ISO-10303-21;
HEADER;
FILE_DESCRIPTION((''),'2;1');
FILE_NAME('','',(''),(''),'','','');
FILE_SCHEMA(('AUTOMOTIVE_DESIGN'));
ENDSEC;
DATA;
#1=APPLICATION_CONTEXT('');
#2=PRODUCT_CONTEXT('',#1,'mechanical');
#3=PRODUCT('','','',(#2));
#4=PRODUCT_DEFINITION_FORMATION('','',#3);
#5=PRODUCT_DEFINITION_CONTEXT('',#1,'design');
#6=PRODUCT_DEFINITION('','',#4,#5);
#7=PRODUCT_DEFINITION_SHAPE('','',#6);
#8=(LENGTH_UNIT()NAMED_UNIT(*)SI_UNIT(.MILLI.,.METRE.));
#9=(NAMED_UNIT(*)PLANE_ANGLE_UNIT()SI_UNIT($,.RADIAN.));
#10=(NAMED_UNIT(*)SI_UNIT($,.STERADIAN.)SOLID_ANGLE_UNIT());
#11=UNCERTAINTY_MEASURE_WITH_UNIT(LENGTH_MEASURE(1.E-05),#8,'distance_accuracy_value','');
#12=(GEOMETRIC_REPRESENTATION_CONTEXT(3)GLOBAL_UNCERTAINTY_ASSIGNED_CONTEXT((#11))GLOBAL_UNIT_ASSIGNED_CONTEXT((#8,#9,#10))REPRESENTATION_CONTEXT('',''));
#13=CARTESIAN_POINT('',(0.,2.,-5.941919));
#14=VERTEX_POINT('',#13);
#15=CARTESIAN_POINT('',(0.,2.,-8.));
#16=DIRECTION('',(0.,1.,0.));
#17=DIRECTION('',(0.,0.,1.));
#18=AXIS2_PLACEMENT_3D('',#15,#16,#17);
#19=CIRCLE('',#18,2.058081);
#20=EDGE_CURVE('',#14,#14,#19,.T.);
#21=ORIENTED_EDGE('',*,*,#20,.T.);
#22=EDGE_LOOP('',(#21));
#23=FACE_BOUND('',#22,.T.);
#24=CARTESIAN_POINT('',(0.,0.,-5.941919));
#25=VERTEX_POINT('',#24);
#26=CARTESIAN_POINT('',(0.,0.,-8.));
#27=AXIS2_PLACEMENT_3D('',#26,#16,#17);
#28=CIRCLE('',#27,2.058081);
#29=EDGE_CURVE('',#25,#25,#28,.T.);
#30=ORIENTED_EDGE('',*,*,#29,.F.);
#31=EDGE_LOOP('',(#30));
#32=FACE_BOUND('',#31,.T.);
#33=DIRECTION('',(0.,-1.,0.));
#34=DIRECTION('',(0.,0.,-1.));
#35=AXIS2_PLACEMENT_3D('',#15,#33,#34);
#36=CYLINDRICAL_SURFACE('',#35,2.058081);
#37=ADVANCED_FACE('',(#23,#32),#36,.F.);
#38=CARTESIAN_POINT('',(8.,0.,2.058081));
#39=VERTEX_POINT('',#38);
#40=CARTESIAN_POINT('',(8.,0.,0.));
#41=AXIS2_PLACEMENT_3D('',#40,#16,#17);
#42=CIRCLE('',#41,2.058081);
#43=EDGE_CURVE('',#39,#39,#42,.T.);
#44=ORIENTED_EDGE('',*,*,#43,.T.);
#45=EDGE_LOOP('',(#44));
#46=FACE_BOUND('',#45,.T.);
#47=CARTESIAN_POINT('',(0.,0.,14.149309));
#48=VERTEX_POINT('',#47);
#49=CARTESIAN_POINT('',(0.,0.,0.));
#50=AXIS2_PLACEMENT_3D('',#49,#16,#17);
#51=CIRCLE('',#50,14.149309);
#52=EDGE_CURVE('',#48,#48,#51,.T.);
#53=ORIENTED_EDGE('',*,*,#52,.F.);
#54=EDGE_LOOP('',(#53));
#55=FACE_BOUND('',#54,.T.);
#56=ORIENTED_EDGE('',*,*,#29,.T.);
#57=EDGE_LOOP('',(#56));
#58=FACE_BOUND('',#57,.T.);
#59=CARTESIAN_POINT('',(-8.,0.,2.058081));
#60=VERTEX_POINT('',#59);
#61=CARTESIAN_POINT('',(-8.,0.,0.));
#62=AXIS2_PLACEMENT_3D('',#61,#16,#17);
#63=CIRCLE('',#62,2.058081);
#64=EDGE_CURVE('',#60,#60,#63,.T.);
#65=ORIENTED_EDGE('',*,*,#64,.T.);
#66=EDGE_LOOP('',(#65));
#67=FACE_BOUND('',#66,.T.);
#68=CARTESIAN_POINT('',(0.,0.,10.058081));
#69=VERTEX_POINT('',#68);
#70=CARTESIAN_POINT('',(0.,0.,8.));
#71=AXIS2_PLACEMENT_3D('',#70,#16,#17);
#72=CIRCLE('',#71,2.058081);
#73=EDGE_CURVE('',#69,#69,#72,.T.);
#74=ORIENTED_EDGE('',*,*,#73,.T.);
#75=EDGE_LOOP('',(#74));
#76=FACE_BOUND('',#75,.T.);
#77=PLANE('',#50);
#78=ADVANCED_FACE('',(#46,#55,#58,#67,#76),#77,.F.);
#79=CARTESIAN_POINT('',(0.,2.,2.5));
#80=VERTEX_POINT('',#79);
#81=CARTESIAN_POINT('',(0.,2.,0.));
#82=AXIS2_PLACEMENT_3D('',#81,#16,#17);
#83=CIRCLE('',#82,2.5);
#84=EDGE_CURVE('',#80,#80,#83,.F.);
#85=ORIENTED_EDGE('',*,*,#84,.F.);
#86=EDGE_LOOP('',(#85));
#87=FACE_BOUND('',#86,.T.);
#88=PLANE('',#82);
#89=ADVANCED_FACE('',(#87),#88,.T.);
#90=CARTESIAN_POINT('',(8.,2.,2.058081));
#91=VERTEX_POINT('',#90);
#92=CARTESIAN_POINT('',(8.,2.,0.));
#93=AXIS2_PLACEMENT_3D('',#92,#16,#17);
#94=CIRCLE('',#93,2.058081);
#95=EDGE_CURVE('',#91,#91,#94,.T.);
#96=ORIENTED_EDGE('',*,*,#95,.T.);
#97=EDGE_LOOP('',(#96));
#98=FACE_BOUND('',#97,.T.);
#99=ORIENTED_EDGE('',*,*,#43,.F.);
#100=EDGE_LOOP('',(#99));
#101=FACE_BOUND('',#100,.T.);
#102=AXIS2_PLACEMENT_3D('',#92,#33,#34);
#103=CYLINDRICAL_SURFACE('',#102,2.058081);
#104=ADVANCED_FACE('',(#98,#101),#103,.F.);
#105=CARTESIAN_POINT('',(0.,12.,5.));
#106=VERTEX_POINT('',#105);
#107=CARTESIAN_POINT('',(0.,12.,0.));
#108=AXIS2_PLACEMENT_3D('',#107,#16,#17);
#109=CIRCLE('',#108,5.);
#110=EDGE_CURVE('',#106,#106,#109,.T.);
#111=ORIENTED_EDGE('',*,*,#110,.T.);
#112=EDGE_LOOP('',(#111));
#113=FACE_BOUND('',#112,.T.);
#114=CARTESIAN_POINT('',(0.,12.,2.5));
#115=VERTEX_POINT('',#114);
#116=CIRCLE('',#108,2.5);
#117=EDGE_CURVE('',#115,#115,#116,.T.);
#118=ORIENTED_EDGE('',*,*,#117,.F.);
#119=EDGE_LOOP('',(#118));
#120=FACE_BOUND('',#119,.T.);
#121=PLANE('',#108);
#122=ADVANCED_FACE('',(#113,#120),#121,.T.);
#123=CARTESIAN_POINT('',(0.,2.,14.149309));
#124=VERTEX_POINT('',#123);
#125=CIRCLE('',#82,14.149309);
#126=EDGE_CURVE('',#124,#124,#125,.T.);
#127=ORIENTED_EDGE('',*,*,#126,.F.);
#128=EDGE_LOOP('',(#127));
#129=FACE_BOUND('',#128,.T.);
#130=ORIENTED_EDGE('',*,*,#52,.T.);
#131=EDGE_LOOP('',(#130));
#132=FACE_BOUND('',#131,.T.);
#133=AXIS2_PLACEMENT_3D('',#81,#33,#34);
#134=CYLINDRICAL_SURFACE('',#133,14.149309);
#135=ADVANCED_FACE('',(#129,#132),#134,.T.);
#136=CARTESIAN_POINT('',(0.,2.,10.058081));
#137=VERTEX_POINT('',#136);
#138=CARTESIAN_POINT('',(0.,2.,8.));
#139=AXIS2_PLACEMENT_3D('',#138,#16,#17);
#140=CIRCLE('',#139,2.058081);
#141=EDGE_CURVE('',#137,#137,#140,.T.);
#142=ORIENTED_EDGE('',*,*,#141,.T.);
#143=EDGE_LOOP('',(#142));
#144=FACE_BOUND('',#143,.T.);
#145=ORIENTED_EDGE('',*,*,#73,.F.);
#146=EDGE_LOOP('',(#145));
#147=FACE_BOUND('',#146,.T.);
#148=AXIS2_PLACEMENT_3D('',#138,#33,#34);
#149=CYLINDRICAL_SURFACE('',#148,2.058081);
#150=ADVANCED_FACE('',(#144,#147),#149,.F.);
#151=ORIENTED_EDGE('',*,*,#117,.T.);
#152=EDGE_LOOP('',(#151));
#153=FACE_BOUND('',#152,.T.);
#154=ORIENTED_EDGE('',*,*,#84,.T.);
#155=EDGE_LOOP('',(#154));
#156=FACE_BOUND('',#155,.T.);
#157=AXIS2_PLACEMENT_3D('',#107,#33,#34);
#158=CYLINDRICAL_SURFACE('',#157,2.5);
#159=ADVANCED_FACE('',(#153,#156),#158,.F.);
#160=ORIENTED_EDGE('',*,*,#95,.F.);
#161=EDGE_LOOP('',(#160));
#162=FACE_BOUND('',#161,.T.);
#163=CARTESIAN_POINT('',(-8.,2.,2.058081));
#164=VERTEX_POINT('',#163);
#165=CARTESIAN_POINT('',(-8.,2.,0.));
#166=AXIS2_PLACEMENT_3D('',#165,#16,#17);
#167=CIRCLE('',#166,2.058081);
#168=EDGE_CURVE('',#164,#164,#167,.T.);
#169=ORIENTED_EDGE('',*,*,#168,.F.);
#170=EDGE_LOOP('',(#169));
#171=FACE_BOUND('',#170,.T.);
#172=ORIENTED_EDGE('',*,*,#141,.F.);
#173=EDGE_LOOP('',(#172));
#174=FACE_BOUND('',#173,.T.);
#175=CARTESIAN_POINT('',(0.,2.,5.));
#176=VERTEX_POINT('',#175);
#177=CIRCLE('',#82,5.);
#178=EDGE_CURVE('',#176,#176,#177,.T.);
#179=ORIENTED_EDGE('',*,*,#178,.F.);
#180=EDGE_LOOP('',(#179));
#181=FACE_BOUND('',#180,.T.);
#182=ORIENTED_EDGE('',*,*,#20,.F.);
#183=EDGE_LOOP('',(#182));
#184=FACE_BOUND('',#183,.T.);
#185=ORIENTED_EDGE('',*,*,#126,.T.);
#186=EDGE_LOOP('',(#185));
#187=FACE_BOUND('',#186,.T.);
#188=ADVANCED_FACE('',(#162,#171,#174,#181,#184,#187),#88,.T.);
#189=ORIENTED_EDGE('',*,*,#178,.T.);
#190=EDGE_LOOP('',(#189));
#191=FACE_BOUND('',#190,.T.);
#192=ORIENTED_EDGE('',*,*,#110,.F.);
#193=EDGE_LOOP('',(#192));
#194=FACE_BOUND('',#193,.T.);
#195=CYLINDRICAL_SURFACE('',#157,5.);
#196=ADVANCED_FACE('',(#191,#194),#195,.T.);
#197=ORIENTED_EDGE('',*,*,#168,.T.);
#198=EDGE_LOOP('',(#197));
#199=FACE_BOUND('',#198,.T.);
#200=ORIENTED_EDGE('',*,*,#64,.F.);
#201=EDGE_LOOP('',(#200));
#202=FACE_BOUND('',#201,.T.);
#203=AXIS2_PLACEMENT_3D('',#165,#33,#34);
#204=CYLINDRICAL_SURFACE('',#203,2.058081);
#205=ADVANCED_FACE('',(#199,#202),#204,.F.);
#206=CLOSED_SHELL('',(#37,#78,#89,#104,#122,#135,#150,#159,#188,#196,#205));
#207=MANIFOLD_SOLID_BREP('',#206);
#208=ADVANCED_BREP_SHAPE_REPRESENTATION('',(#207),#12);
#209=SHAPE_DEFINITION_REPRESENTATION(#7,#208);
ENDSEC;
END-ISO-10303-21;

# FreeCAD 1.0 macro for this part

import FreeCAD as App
import Part
import Sketcher
from FreeCAD import Vector
Q = App.Units.Quantity

doc = App.newDocument("Part")
body = doc.addObject("PartDesign::Body", "Body")

# Sketch on XZ plane
sketch1 = doc.addObject("Sketcher::SketchObject", "Sketch")
body.addObject(sketch1)
sketch1.AttachmentSupport = (doc.XZ_Plane, [""])
sketch1.MapMode = "FlatFace"
sketch1.addGeometry([
    Part.Circle(Vector(0, 0, 0), Vector(0, 0, 1), 14.1),  # 0
    Part.Circle(Vector(-8, 0, 0), Vector(0, 0, 1), 2.1),  # 1
    Part.Circle(Vector(0, -8, 0), Vector(0, 0, 1), 2.1),  # 2
    Part.Circle(Vector(8, 0, 0), Vector(0, 0, 1), 2.1),  # 3
    Part.Circle(Vector(0, 8, 0), Vector(0, 0, 1), 2.1),  # 4
], False)
sketch1.addConstraint([
    Sketcher.Constraint("Coincident", 0, 3, -1, 1),
    Sketcher.Constraint("Equal", 1, 2),
    Sketcher.Constraint("Equal", 2, 3),
    Sketcher.Constraint("Equal", 3, 4),
    Sketcher.Constraint("Symmetric", 1, 3, 3, 3, -1, 1),
    Sketcher.Constraint("Symmetric", 2, 3, 4, 3, -1, 1),
    Sketcher.Constraint("PointOnObject", 1, 3, -1),
    Sketcher.Constraint("PointOnObject", 2, 3, -2),
    Sketcher.Constraint("DistanceX", 1, 3, -1, 1, Q("8 mm")),
    Sketcher.Constraint("DistanceY", 2, 3, -1, 1, Q("8 mm")),
    Sketcher.Constraint("Diameter", 0, Q("28.298617 mm")),
    Sketcher.Constraint("Diameter", 1, Q("4.116162 mm")),
])
pad1 = doc.addObject("PartDesign::Pad", "Pad")
body.addObject(pad1)
pad1.Profile = sketch1
pad1.Length = 2
pad1.Reversed = True

# Sketch on XZ plane
sketch2 = doc.addObject("Sketcher::SketchObject", "Sketch001")
body.addObject(sketch2)
sketch2.AttachmentSupport = (doc.XZ_Plane, [""])
sketch2.MapMode = "FlatFace"
sketch2.AttachmentOffset = App.Placement(Vector(0, 0, -2), App.Rotation())
sketch2.addGeometry([
    Part.Circle(Vector(0, 0, 0), Vector(0, 0, 1), 5),
    Part.Circle(Vector(0, 0, 0), Vector(0, 0, 1), 2.5),
], False)
sketch2.addConstraint([
    Sketcher.Constraint("Coincident", 0, 3, -1, 1),
    Sketcher.Constraint("Coincident", 1, 3, -1, 1),
    Sketcher.Constraint("Diameter", 0, Q("10 mm")),
    Sketcher.Constraint("Diameter", 1, Q("5 mm")),
])
pad2 = doc.addObject("PartDesign::Pad", "Pad001")
body.addObject(pad2)
pad2.Profile = sketch2
pad2.Length = 10
pad2.Reversed = True

doc.recompute()
